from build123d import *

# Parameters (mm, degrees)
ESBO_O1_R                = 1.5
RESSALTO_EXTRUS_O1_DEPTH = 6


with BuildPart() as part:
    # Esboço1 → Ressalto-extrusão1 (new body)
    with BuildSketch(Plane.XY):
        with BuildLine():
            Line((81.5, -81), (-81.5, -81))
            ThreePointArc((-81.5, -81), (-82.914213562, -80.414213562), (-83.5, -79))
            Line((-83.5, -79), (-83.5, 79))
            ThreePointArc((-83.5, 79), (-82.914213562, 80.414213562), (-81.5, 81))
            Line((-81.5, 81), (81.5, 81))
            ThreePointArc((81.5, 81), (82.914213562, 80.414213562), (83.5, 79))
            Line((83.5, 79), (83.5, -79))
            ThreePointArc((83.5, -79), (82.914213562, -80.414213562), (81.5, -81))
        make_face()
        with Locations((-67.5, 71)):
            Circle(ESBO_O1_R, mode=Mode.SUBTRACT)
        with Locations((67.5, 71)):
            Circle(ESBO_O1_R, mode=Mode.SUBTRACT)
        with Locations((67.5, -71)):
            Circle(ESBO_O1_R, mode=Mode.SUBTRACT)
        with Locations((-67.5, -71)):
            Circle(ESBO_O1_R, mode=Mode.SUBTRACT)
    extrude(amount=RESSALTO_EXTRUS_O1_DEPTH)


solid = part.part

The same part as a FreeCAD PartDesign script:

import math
import FreeCAD as App
import Part
import Sketcher

doc = App.newDocument("Part")
body = doc.addObject("PartDesign::Body", "Body")

# Sketch on XY plane
sketch1 = body.newObject("Sketcher::SketchObject", "Sketch")
sketch1.AttachmentSupport = (doc.getObject("XY_Plane"), [""])
sketch1.MapMode = "FlatFace"
sketch1.addGeometry(Part.LineSegment(App.Vector(-81.5, -81, 0), App.Vector(81.5, -81, 0)), False)
sketch1.addGeometry(Part.ArcOfCircle(Part.Circle(App.Vector(81.5, -79, 0), App.Vector(0, 0, 1), 2), math.radians(-90), math.radians(0)), False)
sketch1.addGeometry(Part.LineSegment(App.Vector(83.5, -79, 0), App.Vector(83.5, 79, 0)), False)
sketch1.addGeometry(Part.ArcOfCircle(Part.Circle(App.Vector(81.5, 79, 0), App.Vector(0, 0, 1), 2), math.radians(0), math.radians(90)), False)
sketch1.addGeometry(Part.LineSegment(App.Vector(81.5, 81, 0), App.Vector(-81.5, 81, 0)), False)
sketch1.addGeometry(Part.ArcOfCircle(Part.Circle(App.Vector(-81.5, 79, 0), App.Vector(0, 0, 1), 2), math.radians(90), math.radians(180)), False)
sketch1.addGeometry(Part.LineSegment(App.Vector(-83.5, 79, 0), App.Vector(-83.5, -79, 0)), False)
sketch1.addGeometry(Part.ArcOfCircle(Part.Circle(App.Vector(-81.5, -79, 0), App.Vector(0, 0, 1), 2), math.radians(-180), math.radians(-90)), False)
sketch1.addGeometry(Part.Circle(App.Vector(67.5, -71, 0), App.Vector(0, 0, 1), 1.5), False)
sketch1.addGeometry(Part.Circle(App.Vector(-67.5, -71, 0), App.Vector(0, 0, 1), 1.5), False)
sketch1.addGeometry(Part.Circle(App.Vector(67.5, 71, 0), App.Vector(0, 0, 1), 1.5), False)
sketch1.addGeometry(Part.Circle(App.Vector(-67.5, 71, 0), App.Vector(0, 0, 1), 1.5), False)
sketch1.addConstraint(Sketcher.Constraint("Tangent", 0, 2, 1, 1))
sketch1.addConstraint(Sketcher.Constraint("Tangent", 1, 2, 2, 1))
sketch1.addConstraint(Sketcher.Constraint("Tangent", 2, 2, 3, 1))
sketch1.addConstraint(Sketcher.Constraint("Tangent", 3, 2, 4, 1))
sketch1.addConstraint(Sketcher.Constraint("Tangent", 4, 2, 5, 1))
sketch1.addConstraint(Sketcher.Constraint("Tangent", 5, 2, 6, 1))
sketch1.addConstraint(Sketcher.Constraint("Tangent", 6, 2, 7, 1))
sketch1.addConstraint(Sketcher.Constraint("Tangent", 7, 2, 0, 1))
sketch1.addConstraint(Sketcher.Constraint("Horizontal", 0))
sketch1.addConstraint(Sketcher.Constraint("Vertical", 2))
sketch1.addConstraint(Sketcher.Constraint("Horizontal", 4))
sketch1.addConstraint(Sketcher.Constraint("Vertical", 6))
sketch1.addConstraint(Sketcher.Constraint("Equal", 1, 3))
sketch1.addConstraint(Sketcher.Constraint("Equal", 3, 5))
sketch1.addConstraint(Sketcher.Constraint("Equal", 5, 7))
sketch1.addConstraint(Sketcher.Constraint("Equal", 8, 9))
sketch1.addConstraint(Sketcher.Constraint("Equal", 9, 10))
sketch1.addConstraint(Sketcher.Constraint("Equal", 10, 11))
sketch1.addConstraint(Sketcher.Constraint("Symmetric", 1, 3, 5, 3, -1, 1))
sketch1.addConstraint(Sketcher.Constraint("Symmetric", 9, 3, 10, 3, -1, 1))
sketch1.addConstraint(Sketcher.Constraint("Symmetric", 8, 3, 11, 3, -1, 1))
sketch1.addConstraint(Sketcher.Constraint("Symmetric", 8, 3, 9, 3, -2))
sketch1.addConstraint(Sketcher.Constraint("Diameter", 8, 3.0))
sketch1.addConstraint(Sketcher.Constraint("Radius", 1, 2.0))
sketch1.addConstraint(Sketcher.Constraint("DistanceX", 0, 1, 0, 2, 163.0))
sketch1.addConstraint(Sketcher.Constraint("DistanceY", 2, 1, 2, 2, 158.0))
sketch1.addConstraint(Sketcher.Constraint("DistanceY", 8, 3, -1, 1, 71.0))
sketch1.addConstraint(Sketcher.Constraint("DistanceX", 8, 3, 1, 3, 14.0))
pad1 = body.newObject("PartDesign::Pad", "Pad")
pad1.Profile = sketch1
pad1.Length = 6

doc.recompute()
